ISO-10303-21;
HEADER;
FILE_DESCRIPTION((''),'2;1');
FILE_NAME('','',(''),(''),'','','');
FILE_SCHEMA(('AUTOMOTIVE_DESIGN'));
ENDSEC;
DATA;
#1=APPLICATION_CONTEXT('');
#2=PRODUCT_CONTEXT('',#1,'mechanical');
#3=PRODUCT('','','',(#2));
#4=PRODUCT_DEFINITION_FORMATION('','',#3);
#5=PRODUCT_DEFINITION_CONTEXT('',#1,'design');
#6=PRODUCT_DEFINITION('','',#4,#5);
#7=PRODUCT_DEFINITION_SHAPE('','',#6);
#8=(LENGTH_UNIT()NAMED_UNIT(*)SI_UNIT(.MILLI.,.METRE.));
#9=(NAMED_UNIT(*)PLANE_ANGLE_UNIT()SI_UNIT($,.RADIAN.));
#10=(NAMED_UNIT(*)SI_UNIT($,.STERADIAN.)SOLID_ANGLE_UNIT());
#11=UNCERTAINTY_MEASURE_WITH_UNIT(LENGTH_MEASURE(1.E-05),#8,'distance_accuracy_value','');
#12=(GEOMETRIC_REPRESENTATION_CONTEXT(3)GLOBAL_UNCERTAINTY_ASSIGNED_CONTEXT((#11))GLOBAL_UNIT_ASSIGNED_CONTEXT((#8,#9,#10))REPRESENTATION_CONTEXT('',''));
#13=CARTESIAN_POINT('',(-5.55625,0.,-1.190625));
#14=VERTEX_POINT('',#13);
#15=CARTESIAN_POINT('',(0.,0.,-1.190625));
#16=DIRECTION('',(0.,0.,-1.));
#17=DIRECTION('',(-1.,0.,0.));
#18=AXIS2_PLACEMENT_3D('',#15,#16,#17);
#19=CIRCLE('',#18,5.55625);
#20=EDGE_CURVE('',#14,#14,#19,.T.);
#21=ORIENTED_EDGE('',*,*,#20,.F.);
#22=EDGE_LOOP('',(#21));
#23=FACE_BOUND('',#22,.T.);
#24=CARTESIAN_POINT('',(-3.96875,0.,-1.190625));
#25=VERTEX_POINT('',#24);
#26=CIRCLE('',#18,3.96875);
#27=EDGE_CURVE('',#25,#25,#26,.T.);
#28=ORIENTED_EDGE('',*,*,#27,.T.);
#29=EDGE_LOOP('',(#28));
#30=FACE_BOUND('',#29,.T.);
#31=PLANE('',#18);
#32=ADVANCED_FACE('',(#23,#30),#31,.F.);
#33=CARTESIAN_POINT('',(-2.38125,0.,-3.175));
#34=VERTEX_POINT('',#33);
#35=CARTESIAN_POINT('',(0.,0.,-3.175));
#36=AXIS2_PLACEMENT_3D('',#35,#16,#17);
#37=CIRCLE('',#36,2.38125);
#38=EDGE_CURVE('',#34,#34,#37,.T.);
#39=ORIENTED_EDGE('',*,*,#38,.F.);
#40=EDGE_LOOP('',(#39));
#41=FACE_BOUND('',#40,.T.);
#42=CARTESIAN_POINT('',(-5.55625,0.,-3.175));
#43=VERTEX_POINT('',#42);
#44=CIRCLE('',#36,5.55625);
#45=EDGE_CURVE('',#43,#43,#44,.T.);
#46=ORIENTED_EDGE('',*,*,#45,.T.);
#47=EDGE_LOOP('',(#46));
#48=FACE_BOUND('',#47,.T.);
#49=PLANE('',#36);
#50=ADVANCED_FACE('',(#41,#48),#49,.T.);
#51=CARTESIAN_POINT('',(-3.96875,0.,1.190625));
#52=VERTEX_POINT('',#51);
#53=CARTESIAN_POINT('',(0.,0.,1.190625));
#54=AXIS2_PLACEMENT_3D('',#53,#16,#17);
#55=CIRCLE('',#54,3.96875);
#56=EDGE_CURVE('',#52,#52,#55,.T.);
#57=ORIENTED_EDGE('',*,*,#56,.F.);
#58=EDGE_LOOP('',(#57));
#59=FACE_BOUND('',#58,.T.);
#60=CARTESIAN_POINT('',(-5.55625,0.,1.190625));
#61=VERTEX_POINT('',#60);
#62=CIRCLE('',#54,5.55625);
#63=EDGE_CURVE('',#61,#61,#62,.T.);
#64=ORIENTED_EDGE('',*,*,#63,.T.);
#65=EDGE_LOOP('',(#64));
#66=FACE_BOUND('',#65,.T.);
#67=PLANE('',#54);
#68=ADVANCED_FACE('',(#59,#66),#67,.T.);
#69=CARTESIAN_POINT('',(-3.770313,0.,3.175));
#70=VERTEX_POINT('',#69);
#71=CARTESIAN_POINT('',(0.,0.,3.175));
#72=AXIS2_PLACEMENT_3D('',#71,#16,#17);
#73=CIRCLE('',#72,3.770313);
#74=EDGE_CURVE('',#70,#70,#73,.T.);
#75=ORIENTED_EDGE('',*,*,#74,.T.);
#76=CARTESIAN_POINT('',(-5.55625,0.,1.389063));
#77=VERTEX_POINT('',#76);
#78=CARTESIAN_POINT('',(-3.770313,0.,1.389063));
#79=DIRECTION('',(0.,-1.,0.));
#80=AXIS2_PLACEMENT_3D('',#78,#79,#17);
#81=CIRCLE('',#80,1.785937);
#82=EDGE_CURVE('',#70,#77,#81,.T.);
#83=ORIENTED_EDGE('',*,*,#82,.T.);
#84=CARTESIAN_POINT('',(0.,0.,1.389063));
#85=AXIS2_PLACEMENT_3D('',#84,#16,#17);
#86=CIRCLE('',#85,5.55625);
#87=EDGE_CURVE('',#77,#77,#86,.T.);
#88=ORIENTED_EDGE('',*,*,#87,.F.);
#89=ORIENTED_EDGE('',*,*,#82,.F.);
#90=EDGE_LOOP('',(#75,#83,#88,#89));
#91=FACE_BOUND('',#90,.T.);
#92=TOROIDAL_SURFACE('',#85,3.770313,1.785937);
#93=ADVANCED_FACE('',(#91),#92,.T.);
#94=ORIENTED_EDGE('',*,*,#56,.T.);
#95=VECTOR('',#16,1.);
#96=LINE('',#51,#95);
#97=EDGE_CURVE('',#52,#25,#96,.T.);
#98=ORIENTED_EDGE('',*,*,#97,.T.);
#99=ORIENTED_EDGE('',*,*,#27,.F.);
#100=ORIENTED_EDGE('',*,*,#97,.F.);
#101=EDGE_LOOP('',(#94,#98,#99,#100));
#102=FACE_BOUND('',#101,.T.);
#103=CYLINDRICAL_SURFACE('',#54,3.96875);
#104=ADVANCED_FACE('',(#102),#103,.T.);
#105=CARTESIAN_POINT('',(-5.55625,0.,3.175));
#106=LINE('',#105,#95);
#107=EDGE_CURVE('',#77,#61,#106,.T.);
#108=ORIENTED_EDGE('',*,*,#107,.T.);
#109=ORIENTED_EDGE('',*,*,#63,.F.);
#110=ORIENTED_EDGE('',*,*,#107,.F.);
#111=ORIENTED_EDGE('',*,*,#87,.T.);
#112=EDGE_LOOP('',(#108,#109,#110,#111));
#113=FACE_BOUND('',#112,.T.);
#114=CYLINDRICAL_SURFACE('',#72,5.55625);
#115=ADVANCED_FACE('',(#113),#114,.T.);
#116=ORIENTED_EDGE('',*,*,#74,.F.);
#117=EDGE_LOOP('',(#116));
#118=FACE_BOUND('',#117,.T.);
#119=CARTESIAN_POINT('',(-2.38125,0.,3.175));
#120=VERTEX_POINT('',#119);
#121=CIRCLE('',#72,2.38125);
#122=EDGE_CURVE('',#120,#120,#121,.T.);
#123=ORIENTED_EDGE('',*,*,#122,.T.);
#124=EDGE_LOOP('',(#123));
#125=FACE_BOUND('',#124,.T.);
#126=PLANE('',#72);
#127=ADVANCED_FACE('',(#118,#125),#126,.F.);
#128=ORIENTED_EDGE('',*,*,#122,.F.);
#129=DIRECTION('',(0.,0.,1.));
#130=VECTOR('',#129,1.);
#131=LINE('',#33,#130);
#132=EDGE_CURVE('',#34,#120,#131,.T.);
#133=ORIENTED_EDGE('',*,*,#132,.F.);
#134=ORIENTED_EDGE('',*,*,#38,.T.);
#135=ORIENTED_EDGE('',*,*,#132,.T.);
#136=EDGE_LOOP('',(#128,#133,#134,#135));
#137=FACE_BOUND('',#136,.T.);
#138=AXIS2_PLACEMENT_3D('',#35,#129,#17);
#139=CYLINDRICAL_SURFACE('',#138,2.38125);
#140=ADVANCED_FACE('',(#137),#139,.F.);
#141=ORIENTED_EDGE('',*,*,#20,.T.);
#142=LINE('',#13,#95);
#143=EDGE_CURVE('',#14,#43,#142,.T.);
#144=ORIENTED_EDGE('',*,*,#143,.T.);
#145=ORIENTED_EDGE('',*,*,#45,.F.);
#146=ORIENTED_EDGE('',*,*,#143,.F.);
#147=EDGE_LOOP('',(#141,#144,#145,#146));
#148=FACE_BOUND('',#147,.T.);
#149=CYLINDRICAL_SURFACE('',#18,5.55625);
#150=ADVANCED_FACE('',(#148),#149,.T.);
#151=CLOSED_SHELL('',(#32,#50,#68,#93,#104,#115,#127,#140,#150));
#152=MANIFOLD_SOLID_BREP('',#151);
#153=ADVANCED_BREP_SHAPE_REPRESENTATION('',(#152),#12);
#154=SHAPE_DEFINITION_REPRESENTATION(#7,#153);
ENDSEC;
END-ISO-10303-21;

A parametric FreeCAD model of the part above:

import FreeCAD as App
import Part
import Sketcher

V = App.Vector
Q = App.Units.Quantity


def edges_at(feature, points):
    """Names of the edges that pass closest to the given points."""
    edges = feature.Shape.Edges
    near = lambda p: min(range(len(edges)), key=lambda i: edges[i].distToShape(Part.Vertex(*p))[0])
    return sorted({f"Edge{near(p) + 1}" for p in points})

doc = App.newDocument("Part")
body = doc.addObject("PartDesign::Body", "Body")

sketch1 = body.newObject("Sketcher::SketchObject", "Sketch")
sketch1.AttachmentSupport = (doc.getObject("XZ_Plane"), [""])
sketch1.MapMode = "FlatFace"
sketch1.addGeometry([
    Part.LineSegment(V(-2.4, -3.2, 0), V(-2.4, 3.2, 0)),
    Part.LineSegment(V(-2.4, 3.2, 0), V(-5.6, 3.2, 0)),
    Part.LineSegment(V(-5.6, 3.2, 0), V(-5.6, 1.2, 0)),
    Part.LineSegment(V(-5.6, 1.2, 0), V(-4, 1.2, 0)),
    Part.LineSegment(V(-4, 1.2, 0), V(-4, -1.2, 0)),
    Part.LineSegment(V(-4, -1.2, 0), V(-5.6, -1.2, 0)),
    Part.LineSegment(V(-5.6, -1.2, 0), V(-5.6, -3.2, 0)),
    Part.LineSegment(V(-5.6, -3.2, 0), V(-2.4, -3.2, 0)),
], False)
sketch1.addConstraint([
    Sketcher.Constraint("Coincident", 0, 2, 1, 1),
    Sketcher.Constraint("Coincident", 1, 2, 2, 1),
    Sketcher.Constraint("Coincident", 2, 2, 3, 1),
    Sketcher.Constraint("Coincident", 3, 2, 4, 1),
    Sketcher.Constraint("Coincident", 4, 2, 5, 1),
    Sketcher.Constraint("Coincident", 5, 2, 6, 1),
    Sketcher.Constraint("Coincident", 6, 2, 7, 1),
    Sketcher.Constraint("Coincident", 7, 2, 0, 1),
    Sketcher.Constraint("Vertical", 0),
    Sketcher.Constraint("Horizontal", 1),
    Sketcher.Constraint("Vertical", 2),
    Sketcher.Constraint("Horizontal", 3),
    Sketcher.Constraint("Vertical", 4),
    Sketcher.Constraint("Horizontal", 5),
    Sketcher.Constraint("Vertical", 6),
    Sketcher.Constraint("Horizontal", 7),
    Sketcher.Constraint("Symmetric", 2, 2, 5, 2, -1),
    Sketcher.Constraint("Equal", 2, 6),
    Sketcher.Constraint("DistanceY", 0, 1, 0, 2, Q("0.25 in")),
    Sketcher.Constraint("DistanceX", 1, 2, 1, 1, Q("0.125 in")),
    Sketcher.Constraint("DistanceX", 3, 1, 3, 2, Q("0.0625 in")),
    Sketcher.Constraint("DistanceY", 2, 2, 2, 1, Q("0.078125 in")),
    Sketcher.Constraint("DistanceX", 0, 2, -1, 1, Q("0.09375 in")),
])
revolution = body.newObject("PartDesign::Revolution", "Revolution")
revolution.Profile = sketch1
revolution.ReferenceAxis = (sketch1, ["V_Axis"])
revolution.Angle = 360
doc.recompute()

fillet = body.newObject("PartDesign::Fillet", "Fillet")
fillet.Base = (revolution, edges_at(revolution, [(5.556, 0, 3.175)]))
fillet.Radius = 1.785937

doc.recompute()
